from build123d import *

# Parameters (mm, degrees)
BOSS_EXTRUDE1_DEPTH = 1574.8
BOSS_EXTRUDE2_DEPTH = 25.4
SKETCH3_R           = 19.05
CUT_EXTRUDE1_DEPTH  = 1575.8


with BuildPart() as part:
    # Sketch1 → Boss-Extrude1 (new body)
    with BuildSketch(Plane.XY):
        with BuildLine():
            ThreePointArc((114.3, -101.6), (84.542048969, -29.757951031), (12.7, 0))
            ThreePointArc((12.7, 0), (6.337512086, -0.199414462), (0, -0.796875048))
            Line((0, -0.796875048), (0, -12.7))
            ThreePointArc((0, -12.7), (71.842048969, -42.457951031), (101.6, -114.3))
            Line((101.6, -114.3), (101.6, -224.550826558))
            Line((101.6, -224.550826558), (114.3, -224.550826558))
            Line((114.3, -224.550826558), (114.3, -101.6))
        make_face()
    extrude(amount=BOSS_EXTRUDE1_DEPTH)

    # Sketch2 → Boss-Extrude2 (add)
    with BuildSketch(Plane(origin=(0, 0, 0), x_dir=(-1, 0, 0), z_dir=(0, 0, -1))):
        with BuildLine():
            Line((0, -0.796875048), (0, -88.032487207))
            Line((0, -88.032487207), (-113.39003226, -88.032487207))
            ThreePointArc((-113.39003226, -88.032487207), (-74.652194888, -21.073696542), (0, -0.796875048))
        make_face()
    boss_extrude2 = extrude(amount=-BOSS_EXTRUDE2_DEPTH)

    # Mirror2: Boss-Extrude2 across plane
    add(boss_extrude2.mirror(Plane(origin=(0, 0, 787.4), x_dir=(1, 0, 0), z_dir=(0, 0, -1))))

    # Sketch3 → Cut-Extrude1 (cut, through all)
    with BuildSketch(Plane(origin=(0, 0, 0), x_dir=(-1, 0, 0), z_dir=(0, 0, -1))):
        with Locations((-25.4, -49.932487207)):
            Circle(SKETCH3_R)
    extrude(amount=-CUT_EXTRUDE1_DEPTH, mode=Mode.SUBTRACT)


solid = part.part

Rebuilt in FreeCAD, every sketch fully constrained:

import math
import FreeCAD as App
import Part
import Sketcher

V = App.Vector
Q = App.Units.Quantity

doc = App.newDocument("Part")
body = doc.addObject("PartDesign::Body", "Body")

# Sketch on XY plane
sketch1 = body.newObject("Sketcher::SketchObject", "Sketch")
sketch1.AttachmentSupport = (doc.getObject("XY_Plane"), [""])
sketch1.MapMode = "FlatFace"
sketch1.addGeometry([
    Part.ArcOfCircle(Part.Circle(V(13, -102, 0), V(0, 0, 1), 102), math.radians(0), math.radians(90)),  # 0
    Part.ArcOfCircle(Part.Circle(V(13, -102, 0), V(0, 0, 1), 102), math.radians(90), math.radians(97.18)),  # 1
    Part.LineSegment(V(0, -1, 0), V(0, -13, 0)),  # 2
    Part.ArcOfCircle(Part.Circle(V(0, -114, 0), V(0, 0, 1), 102), math.radians(0), math.radians(90)),  # 3
    Part.LineSegment(V(102, -114, 0), V(102, -225, 0)),  # 4
    Part.LineSegment(V(102, -225, 0), V(114, -225, 0)),  # 5
    Part.LineSegment(V(114, -225, 0), V(114, -102, 0)),  # 6
], False)
sketch1.addConstraint([
    Sketcher.Constraint("Tangent", 0, 2, 1, 1),
    Sketcher.Constraint("Coincident", 1, 2, 2, 1),
    Sketcher.Constraint("Coincident", 2, 2, 3, 2),
    Sketcher.Constraint("Tangent", 3, 1, 4, 1),
    Sketcher.Constraint("Coincident", 4, 2, 5, 1),
    Sketcher.Constraint("Coincident", 5, 2, 6, 1),
    Sketcher.Constraint("Tangent", 6, 2, 0, 1),
    Sketcher.Constraint("Vertical", 2),
    Sketcher.Constraint("Vertical", 4),
    Sketcher.Constraint("Horizontal", 5),
    Sketcher.Constraint("Vertical", 6),
    Sketcher.Constraint("Equal", 0, 1),
    Sketcher.Constraint("Equal", 1, 3),
    Sketcher.Constraint("PointOnObject", 3, 3, -2),
    Sketcher.Constraint("PointOnObject", 0, 2, -1),
    Sketcher.Constraint("PointOnObject", 1, 2, -2),
    Sketcher.Constraint("Vertical", 1, 3, 0, 2),
    Sketcher.Constraint("Radius", 0, Q("4 in")),
    Sketcher.Constraint("DistanceX", 5, 1, 5, 2, Q("0.5 in")),
    Sketcher.Constraint("DistanceY", 3, 3, -1, 1, Q("4.5 in")),
    Sketcher.Constraint("DistanceY", 4, 2, 4, 1, 110.250827),
])
pad1 = body.newObject("PartDesign::Pad", "Pad")
pad1.Profile = sketch1
pad1.Length = Q("62 in")

# Sketch on XY plane
sketch2 = body.newObject("Sketcher::SketchObject", "Sketch001")
sketch2.AttachmentSupport = (doc.getObject("XY_Plane"), [""])
sketch2.MapMode = "FlatFace"
sketch2.addGeometry([
    Part.LineSegment(V(0, -88, 0), V(0, -1, 0)),
    Part.ArcOfCircle(Part.Circle(V(13, -102, 0), V(0, 0, 1), 102), math.radians(8), math.radians(97)),
    Part.LineSegment(V(113, -88, 0), V(0, -88, 0)),
], False)
sketch2.addConstraint([
    Sketcher.Constraint("Coincident", 0, 2, 1, 2),
    Sketcher.Constraint("Coincident", 1, 1, 2, 1),
    Sketcher.Constraint("Coincident", 2, 2, 0, 1),
    Sketcher.Constraint("Vertical", 0),
    Sketcher.Constraint("Horizontal", 2),
    Sketcher.Constraint("PointOnObject", 0, 2, -2),
    Sketcher.Constraint("Radius", 1, Q("4 in")),
    Sketcher.Constraint("DistanceY", 1, 3, -1, 1, Q("4 in")),
    Sketcher.Constraint("DistanceX", -1, 1, 1, 3, Q("0.5 in")),
    Sketcher.Constraint("DistanceX", 2, 2, 2, 1, 113.390032),
])
pad2 = body.newObject("PartDesign::Pad", "Pad001")
pad2.Profile = sketch2
pad2.Length = Q("1 in")
doc.recompute()

datumplane = body.newObject("PartDesign::Plane", "DatumPlane")
datumplane.AttachmentSupport = (doc.getObject("XY_Plane"), [""])
datumplane.MapMode = "FlatFace"
datumplane.AttachmentOffset = App.Placement(V(0, 0, 31 * 25.4), App.Rotation())
mirrored = body.newObject("PartDesign::Mirrored", "Mirrored")
mirrored.Originals = [pad2]
mirrored.MirrorPlane = (datumplane, [""])
body.Tip = mirrored

# Sketch on XY plane
sketch3 = body.newObject("Sketcher::SketchObject", "Sketch002")
sketch3.AttachmentSupport = (doc.getObject("XY_Plane"), [""])
sketch3.MapMode = "FlatFace"
sketch3.addGeometry(Part.Circle(V(25, -50, 0), V(0, 0, 1), 19), False)
sketch3.addConstraint([
    Sketcher.Constraint("Diameter", 0, Q("1.5 in")),
    Sketcher.Constraint("DistanceX", -1, 1, 0, 3, Q("1 in")),
    Sketcher.Constraint("DistanceY", 0, 3, -1, 1, 49.932487),
])
pocket1 = body.newObject("PartDesign::Pocket", "Pocket")
pocket1.Profile = sketch3
pocket1.Type = "ThroughAll"
pocket1.Reversed = True

doc.recompute()
